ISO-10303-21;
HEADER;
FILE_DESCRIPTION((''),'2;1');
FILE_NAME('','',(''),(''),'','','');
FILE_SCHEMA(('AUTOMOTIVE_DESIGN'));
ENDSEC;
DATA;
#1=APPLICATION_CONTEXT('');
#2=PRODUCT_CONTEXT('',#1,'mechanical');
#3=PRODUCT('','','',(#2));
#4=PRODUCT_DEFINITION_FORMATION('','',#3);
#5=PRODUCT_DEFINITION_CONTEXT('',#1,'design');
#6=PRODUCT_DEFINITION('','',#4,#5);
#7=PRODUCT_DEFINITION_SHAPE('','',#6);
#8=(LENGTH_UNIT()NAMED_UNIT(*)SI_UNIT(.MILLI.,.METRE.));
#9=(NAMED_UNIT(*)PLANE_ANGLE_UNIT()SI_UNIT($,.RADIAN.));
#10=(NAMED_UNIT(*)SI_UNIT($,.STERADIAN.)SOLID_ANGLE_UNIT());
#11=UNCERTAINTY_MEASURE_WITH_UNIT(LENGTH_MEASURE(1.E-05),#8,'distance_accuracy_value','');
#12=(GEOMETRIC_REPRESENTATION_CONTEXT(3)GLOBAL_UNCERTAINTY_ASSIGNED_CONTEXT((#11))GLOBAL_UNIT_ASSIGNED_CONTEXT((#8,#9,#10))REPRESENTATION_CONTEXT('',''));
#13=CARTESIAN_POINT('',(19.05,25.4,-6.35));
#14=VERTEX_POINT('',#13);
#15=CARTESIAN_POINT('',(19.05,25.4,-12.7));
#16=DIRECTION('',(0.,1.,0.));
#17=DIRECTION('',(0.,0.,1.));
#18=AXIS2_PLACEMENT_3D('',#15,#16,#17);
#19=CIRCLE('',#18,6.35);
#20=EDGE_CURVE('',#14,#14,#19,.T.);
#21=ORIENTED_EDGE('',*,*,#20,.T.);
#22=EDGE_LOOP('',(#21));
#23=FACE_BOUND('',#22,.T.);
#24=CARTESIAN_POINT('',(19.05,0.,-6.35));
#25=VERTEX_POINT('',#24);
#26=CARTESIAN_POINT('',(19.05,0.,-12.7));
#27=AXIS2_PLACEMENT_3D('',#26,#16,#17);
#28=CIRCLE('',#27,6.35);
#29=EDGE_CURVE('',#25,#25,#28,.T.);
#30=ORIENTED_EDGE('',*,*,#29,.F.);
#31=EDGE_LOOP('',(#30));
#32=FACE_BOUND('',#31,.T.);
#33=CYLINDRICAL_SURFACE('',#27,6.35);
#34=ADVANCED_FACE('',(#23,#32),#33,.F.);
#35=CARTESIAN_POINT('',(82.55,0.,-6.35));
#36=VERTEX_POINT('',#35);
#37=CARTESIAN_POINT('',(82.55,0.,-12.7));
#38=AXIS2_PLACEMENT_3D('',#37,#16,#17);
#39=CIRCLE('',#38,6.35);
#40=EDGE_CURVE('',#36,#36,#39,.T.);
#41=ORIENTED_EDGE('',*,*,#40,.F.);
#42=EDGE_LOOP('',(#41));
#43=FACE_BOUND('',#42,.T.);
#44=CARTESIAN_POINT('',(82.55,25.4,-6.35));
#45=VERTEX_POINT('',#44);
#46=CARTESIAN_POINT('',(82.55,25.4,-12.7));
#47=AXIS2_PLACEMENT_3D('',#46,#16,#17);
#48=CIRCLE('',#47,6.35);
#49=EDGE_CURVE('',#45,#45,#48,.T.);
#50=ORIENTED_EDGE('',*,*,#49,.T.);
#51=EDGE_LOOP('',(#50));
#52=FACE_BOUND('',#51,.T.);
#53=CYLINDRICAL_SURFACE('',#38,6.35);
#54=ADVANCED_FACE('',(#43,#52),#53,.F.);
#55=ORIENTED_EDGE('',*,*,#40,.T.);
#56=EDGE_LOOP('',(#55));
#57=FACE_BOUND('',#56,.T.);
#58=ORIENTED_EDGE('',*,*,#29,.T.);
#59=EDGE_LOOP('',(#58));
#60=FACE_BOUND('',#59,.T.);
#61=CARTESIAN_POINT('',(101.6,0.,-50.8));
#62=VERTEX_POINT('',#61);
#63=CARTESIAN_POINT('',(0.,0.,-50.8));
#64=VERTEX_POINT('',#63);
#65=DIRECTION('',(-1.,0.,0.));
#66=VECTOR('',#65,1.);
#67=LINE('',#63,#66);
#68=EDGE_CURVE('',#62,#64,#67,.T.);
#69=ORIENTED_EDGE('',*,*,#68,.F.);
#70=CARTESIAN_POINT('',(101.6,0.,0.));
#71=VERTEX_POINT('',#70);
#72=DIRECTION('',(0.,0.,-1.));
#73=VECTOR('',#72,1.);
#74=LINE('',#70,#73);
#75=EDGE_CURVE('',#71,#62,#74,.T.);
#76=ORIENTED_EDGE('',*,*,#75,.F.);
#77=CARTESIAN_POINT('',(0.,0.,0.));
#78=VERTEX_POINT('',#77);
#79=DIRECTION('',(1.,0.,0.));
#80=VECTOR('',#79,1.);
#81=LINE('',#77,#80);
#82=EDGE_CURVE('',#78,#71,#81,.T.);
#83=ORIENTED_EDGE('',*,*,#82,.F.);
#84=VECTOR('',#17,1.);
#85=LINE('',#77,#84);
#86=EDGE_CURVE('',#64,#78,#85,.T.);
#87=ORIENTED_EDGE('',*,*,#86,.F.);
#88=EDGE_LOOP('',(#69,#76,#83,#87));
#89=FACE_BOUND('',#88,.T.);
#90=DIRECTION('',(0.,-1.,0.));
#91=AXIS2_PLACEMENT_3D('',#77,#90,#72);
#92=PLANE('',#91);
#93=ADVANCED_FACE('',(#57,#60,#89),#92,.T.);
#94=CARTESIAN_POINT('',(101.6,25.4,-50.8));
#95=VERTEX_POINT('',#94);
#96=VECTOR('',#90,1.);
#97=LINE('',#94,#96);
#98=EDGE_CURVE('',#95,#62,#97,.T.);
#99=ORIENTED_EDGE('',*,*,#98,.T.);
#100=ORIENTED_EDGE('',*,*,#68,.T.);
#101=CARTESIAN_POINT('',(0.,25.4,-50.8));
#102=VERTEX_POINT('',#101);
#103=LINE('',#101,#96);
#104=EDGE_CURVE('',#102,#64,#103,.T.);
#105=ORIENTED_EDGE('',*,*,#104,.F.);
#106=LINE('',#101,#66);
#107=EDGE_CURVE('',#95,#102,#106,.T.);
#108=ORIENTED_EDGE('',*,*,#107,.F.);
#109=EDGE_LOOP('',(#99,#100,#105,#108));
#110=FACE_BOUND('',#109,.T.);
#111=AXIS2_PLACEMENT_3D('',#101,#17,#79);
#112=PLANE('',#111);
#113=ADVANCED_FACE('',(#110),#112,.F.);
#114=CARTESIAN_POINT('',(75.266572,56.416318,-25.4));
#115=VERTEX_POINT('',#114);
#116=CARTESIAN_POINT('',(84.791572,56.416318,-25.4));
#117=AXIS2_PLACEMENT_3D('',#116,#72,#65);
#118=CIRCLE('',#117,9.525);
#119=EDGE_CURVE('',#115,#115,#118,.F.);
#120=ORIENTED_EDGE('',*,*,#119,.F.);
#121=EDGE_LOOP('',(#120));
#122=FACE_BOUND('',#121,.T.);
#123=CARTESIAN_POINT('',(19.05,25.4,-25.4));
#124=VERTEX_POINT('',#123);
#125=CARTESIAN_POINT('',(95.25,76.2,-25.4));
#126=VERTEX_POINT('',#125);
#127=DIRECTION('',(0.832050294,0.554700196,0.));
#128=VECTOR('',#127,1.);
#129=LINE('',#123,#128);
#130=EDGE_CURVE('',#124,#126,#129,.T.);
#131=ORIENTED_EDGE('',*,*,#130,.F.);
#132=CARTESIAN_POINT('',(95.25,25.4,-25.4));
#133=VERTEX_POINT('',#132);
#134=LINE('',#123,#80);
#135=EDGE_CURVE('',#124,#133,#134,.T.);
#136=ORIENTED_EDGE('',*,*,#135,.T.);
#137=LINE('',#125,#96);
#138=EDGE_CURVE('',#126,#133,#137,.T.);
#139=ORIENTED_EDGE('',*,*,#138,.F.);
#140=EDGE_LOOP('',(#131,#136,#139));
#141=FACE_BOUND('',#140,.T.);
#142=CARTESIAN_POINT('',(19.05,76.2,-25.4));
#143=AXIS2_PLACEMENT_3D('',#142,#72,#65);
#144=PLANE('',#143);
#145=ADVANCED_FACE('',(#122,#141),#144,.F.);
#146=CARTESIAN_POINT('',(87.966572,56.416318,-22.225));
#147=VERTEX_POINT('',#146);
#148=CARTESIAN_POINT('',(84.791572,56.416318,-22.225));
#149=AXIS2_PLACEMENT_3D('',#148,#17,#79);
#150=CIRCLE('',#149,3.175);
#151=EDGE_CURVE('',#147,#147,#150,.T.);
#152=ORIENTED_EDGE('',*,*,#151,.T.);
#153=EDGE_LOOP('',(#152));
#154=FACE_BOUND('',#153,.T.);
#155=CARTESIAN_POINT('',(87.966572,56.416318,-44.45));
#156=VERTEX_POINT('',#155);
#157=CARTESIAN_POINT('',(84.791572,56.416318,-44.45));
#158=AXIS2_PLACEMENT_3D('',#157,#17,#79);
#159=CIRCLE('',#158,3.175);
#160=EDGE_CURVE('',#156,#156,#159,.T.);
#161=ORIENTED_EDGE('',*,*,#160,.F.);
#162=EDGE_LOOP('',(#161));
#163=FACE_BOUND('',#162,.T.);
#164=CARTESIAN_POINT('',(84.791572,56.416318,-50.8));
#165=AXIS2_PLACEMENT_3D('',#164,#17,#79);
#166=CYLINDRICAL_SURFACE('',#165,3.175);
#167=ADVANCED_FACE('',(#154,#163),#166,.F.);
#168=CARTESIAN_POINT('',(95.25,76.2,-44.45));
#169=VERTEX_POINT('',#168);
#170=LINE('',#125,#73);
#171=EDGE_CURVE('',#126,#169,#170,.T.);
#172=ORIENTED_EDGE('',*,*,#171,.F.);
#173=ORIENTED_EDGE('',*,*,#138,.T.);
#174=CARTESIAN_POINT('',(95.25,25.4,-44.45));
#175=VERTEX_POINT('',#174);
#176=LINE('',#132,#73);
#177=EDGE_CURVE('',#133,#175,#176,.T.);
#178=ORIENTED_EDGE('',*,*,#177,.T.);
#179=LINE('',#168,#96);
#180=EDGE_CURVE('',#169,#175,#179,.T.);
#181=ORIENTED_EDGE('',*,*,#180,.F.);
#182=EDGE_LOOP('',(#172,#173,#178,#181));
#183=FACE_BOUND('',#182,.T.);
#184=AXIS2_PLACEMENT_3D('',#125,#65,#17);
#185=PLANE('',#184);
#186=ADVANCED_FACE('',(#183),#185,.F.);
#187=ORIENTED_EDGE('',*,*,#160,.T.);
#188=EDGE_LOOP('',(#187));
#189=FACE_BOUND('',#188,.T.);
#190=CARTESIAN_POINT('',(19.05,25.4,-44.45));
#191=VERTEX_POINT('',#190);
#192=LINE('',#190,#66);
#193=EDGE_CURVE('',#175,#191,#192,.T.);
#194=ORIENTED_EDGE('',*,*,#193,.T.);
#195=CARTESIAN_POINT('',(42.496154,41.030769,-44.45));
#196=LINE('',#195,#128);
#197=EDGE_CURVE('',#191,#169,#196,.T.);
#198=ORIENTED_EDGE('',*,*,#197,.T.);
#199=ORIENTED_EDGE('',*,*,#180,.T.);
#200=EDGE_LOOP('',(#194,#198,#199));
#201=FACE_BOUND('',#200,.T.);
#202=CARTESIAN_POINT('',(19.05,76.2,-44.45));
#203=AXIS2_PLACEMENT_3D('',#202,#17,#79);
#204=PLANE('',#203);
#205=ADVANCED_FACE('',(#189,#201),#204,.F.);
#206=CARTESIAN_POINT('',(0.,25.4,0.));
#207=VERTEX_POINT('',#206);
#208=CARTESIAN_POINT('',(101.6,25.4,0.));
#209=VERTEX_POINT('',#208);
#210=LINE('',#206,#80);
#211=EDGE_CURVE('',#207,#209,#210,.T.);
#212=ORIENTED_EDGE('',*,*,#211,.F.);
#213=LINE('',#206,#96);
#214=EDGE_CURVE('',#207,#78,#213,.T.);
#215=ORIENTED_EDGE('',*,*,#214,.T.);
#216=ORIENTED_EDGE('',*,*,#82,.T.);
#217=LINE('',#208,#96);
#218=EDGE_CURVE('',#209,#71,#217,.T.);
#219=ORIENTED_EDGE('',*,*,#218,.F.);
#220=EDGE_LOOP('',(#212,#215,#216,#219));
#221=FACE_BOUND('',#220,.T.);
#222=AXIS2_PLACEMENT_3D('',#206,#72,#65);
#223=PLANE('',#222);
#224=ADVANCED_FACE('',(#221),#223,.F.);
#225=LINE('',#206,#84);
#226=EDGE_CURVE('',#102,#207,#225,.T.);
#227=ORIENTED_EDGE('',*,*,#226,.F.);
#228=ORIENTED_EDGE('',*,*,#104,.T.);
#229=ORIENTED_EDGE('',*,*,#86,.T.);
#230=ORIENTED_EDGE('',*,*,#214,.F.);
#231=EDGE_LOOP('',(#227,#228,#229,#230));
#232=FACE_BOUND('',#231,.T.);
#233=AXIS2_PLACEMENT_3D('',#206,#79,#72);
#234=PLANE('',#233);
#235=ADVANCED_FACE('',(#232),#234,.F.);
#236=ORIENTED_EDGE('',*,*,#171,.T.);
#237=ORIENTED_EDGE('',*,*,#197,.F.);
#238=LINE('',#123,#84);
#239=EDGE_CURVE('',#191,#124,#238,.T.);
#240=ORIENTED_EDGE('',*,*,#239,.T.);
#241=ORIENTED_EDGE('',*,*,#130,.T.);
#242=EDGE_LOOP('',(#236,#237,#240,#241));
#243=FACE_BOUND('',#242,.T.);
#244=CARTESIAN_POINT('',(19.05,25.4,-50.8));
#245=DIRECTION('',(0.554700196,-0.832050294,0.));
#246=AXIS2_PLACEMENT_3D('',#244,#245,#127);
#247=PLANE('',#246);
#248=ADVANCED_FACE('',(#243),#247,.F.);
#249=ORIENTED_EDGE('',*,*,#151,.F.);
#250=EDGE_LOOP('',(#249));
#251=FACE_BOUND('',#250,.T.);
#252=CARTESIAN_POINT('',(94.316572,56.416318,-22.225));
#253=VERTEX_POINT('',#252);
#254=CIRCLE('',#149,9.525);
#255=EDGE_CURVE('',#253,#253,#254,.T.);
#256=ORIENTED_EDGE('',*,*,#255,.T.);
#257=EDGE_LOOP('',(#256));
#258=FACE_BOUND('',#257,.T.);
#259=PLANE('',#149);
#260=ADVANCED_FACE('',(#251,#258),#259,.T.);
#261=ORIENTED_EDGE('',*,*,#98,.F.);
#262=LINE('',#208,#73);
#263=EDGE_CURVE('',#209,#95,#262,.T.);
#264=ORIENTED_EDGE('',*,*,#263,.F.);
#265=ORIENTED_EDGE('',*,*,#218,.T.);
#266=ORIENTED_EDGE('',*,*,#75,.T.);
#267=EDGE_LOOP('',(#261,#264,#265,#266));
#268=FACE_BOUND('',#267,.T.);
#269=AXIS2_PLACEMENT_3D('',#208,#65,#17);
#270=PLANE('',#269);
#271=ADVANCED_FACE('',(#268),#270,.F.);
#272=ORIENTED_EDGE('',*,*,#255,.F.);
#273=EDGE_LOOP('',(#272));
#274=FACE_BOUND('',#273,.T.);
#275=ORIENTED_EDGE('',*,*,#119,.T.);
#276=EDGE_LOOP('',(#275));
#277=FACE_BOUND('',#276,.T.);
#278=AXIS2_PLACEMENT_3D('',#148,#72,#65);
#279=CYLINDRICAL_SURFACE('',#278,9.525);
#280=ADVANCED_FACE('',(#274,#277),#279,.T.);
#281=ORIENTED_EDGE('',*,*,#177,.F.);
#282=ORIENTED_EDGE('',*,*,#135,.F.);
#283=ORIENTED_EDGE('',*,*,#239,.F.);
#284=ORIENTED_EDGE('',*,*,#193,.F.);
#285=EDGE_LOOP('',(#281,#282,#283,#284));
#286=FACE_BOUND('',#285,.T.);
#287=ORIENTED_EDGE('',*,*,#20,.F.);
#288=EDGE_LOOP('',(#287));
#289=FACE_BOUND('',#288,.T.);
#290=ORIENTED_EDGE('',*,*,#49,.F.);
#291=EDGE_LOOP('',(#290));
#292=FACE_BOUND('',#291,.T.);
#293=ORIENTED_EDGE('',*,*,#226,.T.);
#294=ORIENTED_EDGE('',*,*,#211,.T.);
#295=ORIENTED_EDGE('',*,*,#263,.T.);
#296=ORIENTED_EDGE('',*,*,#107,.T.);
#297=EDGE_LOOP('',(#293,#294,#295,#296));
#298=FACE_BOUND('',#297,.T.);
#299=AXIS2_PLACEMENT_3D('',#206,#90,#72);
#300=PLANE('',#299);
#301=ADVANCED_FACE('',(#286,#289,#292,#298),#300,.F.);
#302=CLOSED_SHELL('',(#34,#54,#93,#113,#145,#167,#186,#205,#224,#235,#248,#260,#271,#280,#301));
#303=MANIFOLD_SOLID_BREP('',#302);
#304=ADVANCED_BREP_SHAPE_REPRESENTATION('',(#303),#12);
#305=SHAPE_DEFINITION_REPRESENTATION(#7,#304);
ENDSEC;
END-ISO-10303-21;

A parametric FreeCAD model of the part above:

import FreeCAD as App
import Part
import Sketcher

V = App.Vector
Q = App.Units.Quantity


def add_polygon(sketch, points):
    """Adds a closed chain of lines whose ends are joined by coincident constraints."""
    first, n = sketch.GeometryCount, len(points)
    for a, b in zip(points, points[1:] + points[:1]):
        sketch.addGeometry(Part.LineSegment(App.Vector(*a, 0), App.Vector(*b, 0)), False)
    for i in range(n):
        sketch.addConstraint(Sketcher.Constraint("Coincident", first + i, 2, first + (i + 1) % n, 1))

doc = App.newDocument("Part")
body = doc.addObject("PartDesign::Body", "Body")

# Sketch on XZ plane
sketch1 = body.newObject("Sketcher::SketchObject", "Sketch")
sketch1.AttachmentSupport = (doc.getObject("XZ_Plane"), [""])
sketch1.MapMode = "FlatFace"
add_polygon(sketch1, [(0, -51), (0, 0), (102, 0), (102, -51)])  # lines 0-3
sketch1.addConstraint([
    Sketcher.Constraint("Vertical", 0),
    Sketcher.Constraint("Horizontal", 1),
    Sketcher.Constraint("Vertical", 2),
    Sketcher.Constraint("Horizontal", 3),
    Sketcher.Constraint("Coincident", 0, 2, -1, 1),
    Sketcher.Constraint("DistanceX", 1, 1, 1, 2, Q("4 in")),
    Sketcher.Constraint("DistanceY", 0, 1, 0, 2, Q("2 in")),
])
pad1 = body.newObject("PartDesign::Pad", "Pad")
pad1.Profile = sketch1
pad1.Length = Q("1 in")
pad1.Reversed = True

# Sketch on XZ plane
sketch2 = body.newObject("Sketcher::SketchObject", "Sketch001")
sketch2.AttachmentSupport = (doc.getObject("XZ_Plane"), [""])
sketch2.MapMode = "FlatFace"
sketch2.AttachmentOffset = App.Placement(V(0, 0, -1 * 25.4), App.Rotation())
add_polygon(sketch2, [(19, -44), (19, -25), (95, -25), (95, -44)])  # lines 0-3
sketch2.addConstraint([
    Sketcher.Constraint("Vertical", 0),
    Sketcher.Constraint("Horizontal", 1),
    Sketcher.Constraint("Vertical", 2),
    Sketcher.Constraint("Horizontal", 3),
    Sketcher.Constraint("DistanceX", 1, 1, 1, 2, Q("3 in")),
    Sketcher.Constraint("DistanceY", 0, 2, -1, 1, Q("1 in")),
    Sketcher.Constraint("DistanceY", 0, 1, 0, 2, Q("0.75 in")),
    Sketcher.Constraint("DistanceX", -1, 1, 0, 2, Q("0.75 in")),
])
pad2 = body.newObject("PartDesign::Pad", "Pad001")
pad2.Profile = sketch2
pad2.Length = Q("2 in")
pad2.Reversed = True

# Sketch on XY plane
sketch3 = body.newObject("Sketcher::SketchObject", "Sketch002")
sketch3.AttachmentSupport = (doc.getObject("XY_Plane"), [""])
sketch3.MapMode = "FlatFace"
sketch3.AttachmentOffset = App.Placement(V(0, 0, -1 * 25.4), App.Rotation())
add_polygon(sketch3, [(95, 76), (19, 76), (19, 25)])  # lines 0-2
sketch3.addConstraint([
    Sketcher.Constraint("Horizontal", 0),
    Sketcher.Constraint("Vertical", 1),
    Sketcher.Constraint("DistanceX", 0, 2, 0, 1, Q("3 in")),
    Sketcher.Constraint("DistanceY", 1, 2, 1, 1, Q("2 in")),
    Sketcher.Constraint("DistanceY", -1, 1, 0, 2, Q("3 in")),
    Sketcher.Constraint("DistanceX", -1, 1, 0, 2, Q("0.75 in")),
])
pocket1 = body.newObject("PartDesign::Pocket", "Pocket")
pocket1.Profile = sketch3
pocket1.Type = "ThroughAll"

# Sketch on XY plane
sketch4 = body.newObject("Sketcher::SketchObject", "Sketch003")
sketch4.AttachmentSupport = (doc.getObject("XY_Plane"), [""])
sketch4.MapMode = "FlatFace"
sketch4.AttachmentOffset = App.Placement(V(0, 0, -1 * 25.4), App.Rotation())
sketch4.addGeometry(Part.Circle(V(84.8, 56.4, 0), V(0, 0, 1), 3.2), False)
sketch4.addConstraint([
    Sketcher.Constraint("Diameter", 0, Q("0.25 in")),
    Sketcher.Constraint("DistanceX", -1, 1, 0, 3, Q("84.791572 mm")),
    Sketcher.Constraint("DistanceY", -1, 1, 0, 3, Q("56.416318 mm")),
])
pocket2 = body.newObject("PartDesign::Pocket", "Pocket001")
pocket2.Profile = sketch4
pocket2.Type = "ThroughAll"

# Sketch on XY plane
sketch5 = body.newObject("Sketcher::SketchObject", "Sketch004")
sketch5.AttachmentSupport = (doc.getObject("XY_Plane"), [""])
sketch5.MapMode = "FlatFace"
sketch5.AttachmentOffset = App.Placement(V(0, 0, -1 * 25.4), App.Rotation())
sketch5.addGeometry([
    Part.Circle(V(84.8, 56.4, 0), V(0, 0, 1), 9.5),
    Part.Circle(V(84.8, 56.4, 0), V(0, 0, 1), 3.2),
], False)
sketch5.addConstraint([
    Sketcher.Constraint("Coincident", 1, 3, 0, 3),
    Sketcher.Constraint("Diameter", 0, Q("0.75 in")),
    Sketcher.Constraint("Diameter", 1, Q("0.25 in")),
    Sketcher.Constraint("DistanceX", -1, 1, 0, 3, Q("84.791572 mm")),
    Sketcher.Constraint("DistanceY", -1, 1, 0, 3, Q("56.416318 mm")),
])
pad3 = body.newObject("PartDesign::Pad", "Pad002")
pad3.Profile = sketch5
pad3.Length = Q("0.125 in")

# Sketch on XZ plane
sketch6 = body.newObject("Sketcher::SketchObject", "Sketch005")
sketch6.AttachmentSupport = (doc.getObject("XZ_Plane"), [""])
sketch6.MapMode = "FlatFace"
sketch6.AttachmentOffset = App.Placement(V(0, 0, -1 * 25.4), App.Rotation())
sketch6.addGeometry([
    Part.Circle(V(19, -13, 0), V(0, 0, 1), 6),
    Part.Circle(V(83, -13, 0), V(0, 0, 1), 6),
], False)
sketch6.addConstraint([
    Sketcher.Constraint("Equal", 0, 1),
    Sketcher.Constraint("Horizontal", 0, 3, 1, 3),
    Sketcher.Constraint("Diameter", 0, Q("0.5 in")),
    Sketcher.Constraint("DistanceY", 0, 3, -1, 1, Q("0.5 in")),
    Sketcher.Constraint("DistanceX", 0, 3, 1, 3, Q("2.5 in")),
    Sketcher.Constraint("DistanceX", -1, 1, 0, 3, Q("0.75 in")),
])
pocket3 = body.newObject("PartDesign::Pocket", "Pocket002")
pocket3.Profile = sketch6
pocket3.Type = "ThroughAll"
pocket3.Reversed = True

doc.recompute()
